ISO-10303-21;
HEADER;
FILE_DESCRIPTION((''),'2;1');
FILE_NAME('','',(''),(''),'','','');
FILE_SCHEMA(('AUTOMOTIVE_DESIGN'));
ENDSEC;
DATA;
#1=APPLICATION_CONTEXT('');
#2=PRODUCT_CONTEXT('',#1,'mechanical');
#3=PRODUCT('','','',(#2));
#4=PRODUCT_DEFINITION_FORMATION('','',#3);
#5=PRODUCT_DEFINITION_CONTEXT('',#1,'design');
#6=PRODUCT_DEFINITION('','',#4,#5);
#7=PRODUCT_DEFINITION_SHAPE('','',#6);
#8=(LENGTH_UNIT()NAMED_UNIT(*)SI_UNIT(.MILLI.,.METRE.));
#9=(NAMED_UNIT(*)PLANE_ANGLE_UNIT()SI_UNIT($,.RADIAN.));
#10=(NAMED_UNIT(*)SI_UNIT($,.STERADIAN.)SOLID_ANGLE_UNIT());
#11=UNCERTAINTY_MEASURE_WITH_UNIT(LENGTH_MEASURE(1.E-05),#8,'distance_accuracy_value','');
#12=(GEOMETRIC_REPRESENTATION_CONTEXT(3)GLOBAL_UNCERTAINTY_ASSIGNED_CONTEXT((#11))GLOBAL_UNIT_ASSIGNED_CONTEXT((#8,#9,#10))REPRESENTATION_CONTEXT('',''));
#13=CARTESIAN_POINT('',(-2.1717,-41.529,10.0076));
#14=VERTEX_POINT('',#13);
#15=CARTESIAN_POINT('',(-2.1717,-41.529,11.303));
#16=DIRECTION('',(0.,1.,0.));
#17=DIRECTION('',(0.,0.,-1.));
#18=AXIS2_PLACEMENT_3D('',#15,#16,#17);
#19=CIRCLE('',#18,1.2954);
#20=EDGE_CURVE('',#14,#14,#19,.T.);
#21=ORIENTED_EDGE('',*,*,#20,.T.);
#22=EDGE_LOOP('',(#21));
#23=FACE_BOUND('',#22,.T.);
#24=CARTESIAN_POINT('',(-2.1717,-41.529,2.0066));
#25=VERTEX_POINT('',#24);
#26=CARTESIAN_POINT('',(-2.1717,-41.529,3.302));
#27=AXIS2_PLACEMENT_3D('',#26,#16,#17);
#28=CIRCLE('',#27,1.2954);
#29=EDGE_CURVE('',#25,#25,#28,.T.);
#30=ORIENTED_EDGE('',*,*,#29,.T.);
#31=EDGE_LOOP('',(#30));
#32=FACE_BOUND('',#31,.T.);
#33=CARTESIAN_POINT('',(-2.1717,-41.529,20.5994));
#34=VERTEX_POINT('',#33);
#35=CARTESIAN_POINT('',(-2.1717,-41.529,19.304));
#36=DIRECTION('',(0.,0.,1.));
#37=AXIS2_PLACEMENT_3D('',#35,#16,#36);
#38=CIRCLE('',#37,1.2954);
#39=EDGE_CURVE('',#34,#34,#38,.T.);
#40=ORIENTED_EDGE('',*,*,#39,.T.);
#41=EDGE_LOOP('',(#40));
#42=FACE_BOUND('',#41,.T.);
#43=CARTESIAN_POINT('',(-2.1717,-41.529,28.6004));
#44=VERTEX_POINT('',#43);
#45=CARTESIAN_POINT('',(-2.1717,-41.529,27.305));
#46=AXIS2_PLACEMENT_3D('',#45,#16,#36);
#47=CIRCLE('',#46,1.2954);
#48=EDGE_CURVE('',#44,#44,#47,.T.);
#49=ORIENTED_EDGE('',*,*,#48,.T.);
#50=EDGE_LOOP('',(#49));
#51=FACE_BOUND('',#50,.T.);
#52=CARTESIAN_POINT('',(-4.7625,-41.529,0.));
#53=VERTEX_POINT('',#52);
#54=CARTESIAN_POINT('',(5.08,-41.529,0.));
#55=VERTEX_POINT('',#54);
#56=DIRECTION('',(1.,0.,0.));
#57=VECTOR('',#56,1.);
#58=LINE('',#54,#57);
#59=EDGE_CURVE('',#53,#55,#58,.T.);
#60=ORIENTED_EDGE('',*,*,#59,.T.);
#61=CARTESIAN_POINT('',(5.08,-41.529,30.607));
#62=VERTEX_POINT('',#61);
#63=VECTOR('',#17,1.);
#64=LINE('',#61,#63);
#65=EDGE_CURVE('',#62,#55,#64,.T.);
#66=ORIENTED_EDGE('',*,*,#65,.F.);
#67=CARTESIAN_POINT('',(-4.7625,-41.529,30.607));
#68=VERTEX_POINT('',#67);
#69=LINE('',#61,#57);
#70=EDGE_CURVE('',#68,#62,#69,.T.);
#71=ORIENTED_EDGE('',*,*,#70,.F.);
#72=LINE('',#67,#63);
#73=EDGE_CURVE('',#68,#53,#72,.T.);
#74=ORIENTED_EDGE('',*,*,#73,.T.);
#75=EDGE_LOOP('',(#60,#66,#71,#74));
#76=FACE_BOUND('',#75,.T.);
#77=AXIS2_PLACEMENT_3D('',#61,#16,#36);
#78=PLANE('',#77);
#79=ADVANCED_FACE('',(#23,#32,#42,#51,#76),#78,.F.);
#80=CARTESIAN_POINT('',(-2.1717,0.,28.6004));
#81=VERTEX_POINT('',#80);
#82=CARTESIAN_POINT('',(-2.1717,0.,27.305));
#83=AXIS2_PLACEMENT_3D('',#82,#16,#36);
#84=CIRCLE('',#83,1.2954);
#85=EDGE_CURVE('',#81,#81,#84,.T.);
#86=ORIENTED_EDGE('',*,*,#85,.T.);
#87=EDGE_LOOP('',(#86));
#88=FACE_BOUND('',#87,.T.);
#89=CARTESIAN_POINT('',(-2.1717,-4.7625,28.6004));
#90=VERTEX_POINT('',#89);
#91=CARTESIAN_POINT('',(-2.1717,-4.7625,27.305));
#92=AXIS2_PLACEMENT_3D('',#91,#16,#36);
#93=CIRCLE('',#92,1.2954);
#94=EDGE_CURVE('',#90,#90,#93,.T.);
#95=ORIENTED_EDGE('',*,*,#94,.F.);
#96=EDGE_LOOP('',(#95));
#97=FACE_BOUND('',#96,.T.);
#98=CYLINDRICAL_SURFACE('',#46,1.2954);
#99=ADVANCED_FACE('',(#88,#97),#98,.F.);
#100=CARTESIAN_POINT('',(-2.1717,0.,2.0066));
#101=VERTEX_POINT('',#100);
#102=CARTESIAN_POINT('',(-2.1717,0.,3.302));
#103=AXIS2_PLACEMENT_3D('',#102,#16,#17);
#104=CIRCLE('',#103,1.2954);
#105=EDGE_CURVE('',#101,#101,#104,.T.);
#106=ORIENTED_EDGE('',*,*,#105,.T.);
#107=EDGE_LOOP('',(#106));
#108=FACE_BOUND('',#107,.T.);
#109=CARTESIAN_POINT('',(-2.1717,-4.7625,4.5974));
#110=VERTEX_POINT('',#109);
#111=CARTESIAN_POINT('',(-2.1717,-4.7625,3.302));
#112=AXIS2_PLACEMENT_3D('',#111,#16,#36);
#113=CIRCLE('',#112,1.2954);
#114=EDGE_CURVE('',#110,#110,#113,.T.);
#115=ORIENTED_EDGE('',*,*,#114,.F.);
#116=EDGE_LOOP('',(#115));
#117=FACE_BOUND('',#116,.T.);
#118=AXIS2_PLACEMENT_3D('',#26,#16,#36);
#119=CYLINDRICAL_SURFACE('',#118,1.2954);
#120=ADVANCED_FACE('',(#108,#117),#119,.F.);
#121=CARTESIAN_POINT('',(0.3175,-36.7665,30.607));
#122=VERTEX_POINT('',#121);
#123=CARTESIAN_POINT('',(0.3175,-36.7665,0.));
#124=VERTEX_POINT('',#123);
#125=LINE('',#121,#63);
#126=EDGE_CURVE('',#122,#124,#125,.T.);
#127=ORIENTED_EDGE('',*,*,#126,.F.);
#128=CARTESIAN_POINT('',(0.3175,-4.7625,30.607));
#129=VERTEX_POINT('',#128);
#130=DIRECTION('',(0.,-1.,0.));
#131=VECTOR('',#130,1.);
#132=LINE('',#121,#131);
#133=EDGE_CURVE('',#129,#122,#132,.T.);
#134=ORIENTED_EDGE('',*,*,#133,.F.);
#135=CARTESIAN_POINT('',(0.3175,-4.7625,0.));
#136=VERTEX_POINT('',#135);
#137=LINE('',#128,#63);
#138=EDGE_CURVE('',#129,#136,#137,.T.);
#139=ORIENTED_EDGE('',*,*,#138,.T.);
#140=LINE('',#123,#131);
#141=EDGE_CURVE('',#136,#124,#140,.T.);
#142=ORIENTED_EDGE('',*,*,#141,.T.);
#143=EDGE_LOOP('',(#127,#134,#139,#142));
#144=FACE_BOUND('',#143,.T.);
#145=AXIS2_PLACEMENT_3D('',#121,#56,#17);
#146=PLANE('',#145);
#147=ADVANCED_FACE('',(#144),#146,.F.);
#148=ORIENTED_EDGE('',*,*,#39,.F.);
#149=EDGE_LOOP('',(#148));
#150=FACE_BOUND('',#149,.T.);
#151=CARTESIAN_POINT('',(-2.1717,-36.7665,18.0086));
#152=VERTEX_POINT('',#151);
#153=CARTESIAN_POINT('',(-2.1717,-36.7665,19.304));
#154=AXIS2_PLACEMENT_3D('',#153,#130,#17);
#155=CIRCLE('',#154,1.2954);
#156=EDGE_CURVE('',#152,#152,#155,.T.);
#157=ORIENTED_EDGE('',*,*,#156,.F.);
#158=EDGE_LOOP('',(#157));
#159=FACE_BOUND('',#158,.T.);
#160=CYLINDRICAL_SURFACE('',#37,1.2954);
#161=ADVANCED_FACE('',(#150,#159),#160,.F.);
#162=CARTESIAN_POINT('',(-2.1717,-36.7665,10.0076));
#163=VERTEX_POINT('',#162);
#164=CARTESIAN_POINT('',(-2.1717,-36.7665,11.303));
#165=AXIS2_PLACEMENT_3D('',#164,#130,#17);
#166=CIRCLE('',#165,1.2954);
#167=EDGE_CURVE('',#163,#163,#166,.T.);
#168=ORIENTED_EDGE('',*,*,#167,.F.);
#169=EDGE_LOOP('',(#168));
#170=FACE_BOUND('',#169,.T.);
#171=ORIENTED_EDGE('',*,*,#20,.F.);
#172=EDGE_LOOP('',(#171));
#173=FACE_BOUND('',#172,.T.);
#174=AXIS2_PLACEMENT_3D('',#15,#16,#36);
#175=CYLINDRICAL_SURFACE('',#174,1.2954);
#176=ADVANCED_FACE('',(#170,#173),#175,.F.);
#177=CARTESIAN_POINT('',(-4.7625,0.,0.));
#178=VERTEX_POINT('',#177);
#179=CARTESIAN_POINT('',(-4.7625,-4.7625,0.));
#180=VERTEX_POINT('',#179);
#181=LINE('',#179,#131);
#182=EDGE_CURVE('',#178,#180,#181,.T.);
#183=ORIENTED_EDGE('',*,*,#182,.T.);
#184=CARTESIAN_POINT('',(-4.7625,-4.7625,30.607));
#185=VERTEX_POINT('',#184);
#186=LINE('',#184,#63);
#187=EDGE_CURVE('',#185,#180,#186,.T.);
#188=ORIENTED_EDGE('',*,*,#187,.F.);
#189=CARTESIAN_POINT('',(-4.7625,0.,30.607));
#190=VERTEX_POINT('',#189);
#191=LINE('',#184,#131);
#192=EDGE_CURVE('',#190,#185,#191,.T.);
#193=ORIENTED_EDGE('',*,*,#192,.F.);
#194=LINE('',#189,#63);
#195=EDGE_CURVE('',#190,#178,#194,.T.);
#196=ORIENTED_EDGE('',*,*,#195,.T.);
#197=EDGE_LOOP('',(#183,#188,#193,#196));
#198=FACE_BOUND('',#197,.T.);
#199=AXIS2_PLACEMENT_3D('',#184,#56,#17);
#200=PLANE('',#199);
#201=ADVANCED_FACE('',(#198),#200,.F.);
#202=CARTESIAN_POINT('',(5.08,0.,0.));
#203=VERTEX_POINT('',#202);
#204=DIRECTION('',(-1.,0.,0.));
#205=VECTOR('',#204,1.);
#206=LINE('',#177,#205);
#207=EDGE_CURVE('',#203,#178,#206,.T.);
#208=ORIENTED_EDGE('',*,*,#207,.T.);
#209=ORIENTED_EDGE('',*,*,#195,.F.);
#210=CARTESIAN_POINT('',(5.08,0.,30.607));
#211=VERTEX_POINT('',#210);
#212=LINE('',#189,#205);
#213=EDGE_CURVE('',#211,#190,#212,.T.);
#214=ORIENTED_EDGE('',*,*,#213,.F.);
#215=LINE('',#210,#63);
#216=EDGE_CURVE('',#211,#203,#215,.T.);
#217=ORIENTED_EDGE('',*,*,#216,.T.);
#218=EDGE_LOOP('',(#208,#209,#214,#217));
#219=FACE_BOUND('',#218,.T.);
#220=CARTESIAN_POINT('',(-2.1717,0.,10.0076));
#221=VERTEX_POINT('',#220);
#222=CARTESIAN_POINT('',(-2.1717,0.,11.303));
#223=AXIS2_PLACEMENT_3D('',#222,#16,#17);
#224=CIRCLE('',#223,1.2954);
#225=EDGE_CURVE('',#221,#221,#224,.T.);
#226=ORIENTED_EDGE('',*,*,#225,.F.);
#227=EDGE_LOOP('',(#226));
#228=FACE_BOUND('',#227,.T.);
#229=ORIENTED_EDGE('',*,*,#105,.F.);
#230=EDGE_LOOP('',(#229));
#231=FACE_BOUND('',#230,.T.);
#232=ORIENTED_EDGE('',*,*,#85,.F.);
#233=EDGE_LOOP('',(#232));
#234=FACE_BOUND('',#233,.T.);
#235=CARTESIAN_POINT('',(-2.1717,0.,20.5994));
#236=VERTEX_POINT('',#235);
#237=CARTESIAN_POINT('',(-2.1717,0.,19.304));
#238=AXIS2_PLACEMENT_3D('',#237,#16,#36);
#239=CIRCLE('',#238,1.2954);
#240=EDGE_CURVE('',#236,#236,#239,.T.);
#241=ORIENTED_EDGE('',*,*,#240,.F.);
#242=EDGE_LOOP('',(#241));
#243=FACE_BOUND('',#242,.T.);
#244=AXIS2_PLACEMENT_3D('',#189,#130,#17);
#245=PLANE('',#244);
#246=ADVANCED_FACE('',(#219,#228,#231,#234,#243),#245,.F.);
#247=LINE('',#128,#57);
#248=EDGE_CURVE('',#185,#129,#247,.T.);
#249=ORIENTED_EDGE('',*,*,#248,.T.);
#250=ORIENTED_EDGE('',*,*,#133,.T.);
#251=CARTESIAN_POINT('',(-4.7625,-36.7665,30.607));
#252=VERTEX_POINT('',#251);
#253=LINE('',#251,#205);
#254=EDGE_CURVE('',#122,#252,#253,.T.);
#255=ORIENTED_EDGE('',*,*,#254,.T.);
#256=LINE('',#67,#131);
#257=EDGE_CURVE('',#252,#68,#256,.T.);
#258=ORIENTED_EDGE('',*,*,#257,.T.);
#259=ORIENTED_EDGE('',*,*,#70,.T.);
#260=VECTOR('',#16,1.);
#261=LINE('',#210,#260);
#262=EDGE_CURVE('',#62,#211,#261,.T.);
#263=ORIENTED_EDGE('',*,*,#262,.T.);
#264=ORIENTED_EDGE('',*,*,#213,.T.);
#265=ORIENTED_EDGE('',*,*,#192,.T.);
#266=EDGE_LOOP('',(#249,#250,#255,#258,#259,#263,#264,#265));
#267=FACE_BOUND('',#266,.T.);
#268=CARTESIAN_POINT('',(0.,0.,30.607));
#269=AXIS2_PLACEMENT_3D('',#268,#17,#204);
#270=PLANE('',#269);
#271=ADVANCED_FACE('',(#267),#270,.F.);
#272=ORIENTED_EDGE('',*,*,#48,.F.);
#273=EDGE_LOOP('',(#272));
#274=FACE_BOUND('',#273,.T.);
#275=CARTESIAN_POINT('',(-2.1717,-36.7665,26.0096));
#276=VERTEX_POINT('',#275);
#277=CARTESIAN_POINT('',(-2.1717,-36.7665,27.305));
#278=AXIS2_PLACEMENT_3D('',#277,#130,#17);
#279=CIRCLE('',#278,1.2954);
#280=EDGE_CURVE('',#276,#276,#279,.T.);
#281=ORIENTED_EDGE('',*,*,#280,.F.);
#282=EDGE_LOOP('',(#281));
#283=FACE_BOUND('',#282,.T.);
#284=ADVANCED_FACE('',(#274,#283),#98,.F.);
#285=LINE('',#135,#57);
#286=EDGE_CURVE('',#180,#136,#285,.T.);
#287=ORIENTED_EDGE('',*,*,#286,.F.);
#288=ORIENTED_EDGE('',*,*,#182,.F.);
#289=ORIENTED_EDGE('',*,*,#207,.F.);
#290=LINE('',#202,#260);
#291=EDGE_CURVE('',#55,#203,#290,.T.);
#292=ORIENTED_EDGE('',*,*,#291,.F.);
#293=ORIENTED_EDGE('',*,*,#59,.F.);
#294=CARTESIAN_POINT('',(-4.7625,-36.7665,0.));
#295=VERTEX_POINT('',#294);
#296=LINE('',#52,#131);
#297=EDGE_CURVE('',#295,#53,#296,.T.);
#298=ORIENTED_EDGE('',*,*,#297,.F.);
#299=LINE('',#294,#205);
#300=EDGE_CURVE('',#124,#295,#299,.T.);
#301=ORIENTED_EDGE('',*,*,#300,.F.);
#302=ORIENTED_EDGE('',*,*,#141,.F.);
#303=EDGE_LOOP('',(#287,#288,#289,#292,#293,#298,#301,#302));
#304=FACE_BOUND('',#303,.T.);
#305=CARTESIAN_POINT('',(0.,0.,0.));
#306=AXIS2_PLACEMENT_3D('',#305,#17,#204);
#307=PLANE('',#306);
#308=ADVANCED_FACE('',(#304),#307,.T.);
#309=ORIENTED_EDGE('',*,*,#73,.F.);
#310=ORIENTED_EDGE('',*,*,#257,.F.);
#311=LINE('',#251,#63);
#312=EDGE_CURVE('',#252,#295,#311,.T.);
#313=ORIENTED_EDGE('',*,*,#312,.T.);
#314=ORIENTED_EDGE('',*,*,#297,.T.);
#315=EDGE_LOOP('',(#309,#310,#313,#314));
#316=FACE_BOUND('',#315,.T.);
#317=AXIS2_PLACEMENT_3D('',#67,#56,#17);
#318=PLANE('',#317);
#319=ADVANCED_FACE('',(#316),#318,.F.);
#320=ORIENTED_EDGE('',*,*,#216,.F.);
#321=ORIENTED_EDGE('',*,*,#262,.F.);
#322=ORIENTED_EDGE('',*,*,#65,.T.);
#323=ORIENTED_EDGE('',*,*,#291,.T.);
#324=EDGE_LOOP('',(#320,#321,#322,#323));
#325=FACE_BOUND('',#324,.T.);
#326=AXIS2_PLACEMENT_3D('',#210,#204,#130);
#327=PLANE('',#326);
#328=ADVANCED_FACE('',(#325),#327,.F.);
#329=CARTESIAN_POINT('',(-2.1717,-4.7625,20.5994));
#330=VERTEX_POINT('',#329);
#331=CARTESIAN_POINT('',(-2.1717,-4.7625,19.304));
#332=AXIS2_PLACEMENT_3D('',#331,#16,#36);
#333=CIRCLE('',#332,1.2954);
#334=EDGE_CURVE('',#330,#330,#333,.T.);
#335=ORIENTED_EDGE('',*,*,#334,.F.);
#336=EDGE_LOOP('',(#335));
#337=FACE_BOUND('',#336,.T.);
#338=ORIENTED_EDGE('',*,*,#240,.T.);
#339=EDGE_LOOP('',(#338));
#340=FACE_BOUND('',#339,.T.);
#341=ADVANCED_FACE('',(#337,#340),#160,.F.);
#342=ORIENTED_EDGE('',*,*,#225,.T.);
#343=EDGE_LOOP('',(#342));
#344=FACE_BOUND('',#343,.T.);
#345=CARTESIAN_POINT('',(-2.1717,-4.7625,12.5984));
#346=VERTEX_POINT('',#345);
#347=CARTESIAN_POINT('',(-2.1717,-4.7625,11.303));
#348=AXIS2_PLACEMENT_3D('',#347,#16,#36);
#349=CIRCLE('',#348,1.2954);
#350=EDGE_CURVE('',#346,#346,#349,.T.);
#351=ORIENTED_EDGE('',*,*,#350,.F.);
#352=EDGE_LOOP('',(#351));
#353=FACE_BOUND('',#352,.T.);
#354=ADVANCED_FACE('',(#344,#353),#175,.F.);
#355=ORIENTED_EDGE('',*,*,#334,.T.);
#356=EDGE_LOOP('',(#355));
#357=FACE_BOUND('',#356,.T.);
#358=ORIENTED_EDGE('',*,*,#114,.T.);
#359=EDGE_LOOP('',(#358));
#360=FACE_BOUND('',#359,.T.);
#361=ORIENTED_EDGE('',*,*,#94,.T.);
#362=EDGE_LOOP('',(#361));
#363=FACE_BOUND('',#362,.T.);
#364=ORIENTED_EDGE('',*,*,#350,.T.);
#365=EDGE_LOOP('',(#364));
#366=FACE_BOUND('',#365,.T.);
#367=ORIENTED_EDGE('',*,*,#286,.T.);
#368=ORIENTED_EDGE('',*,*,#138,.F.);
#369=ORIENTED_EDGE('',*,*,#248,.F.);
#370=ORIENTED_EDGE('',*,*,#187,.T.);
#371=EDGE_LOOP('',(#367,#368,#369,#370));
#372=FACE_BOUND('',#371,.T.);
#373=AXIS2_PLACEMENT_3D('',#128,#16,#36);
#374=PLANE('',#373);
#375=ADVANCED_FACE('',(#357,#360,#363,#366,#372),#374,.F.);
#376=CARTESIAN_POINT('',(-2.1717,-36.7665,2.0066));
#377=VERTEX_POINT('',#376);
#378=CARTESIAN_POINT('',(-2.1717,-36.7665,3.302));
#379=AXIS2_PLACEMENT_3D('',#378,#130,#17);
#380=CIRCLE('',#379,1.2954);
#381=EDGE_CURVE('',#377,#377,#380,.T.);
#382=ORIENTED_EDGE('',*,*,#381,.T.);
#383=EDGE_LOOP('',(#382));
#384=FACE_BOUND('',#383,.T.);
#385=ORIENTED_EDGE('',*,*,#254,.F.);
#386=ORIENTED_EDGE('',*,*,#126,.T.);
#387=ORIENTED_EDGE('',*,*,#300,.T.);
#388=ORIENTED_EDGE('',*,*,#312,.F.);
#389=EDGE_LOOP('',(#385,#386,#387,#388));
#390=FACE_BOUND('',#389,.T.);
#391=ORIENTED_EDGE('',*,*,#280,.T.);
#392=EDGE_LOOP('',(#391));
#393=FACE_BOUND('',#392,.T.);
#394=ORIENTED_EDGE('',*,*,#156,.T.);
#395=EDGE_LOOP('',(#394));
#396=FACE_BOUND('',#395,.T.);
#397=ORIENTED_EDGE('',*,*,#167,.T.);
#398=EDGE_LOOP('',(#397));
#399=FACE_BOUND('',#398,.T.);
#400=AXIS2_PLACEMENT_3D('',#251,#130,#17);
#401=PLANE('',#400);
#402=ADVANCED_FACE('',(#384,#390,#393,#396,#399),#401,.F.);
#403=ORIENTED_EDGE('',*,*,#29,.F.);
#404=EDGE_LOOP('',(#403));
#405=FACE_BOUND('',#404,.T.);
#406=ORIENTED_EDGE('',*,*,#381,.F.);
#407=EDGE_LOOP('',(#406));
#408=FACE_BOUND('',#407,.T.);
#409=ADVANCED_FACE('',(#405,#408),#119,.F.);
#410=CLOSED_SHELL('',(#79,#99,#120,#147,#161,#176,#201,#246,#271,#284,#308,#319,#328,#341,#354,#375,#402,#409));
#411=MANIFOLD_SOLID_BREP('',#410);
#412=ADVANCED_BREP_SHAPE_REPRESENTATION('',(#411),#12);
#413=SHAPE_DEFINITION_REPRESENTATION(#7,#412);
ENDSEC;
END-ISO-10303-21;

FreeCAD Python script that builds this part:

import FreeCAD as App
import Part
import Sketcher
from FreeCAD import Vector
Q = App.Units.Quantity

doc = App.newDocument("Part")
body = doc.addObject("PartDesign::Body", "Body")

# Sketch on XY plane
sketch1 = doc.addObject("Sketcher::SketchObject", "Sketch")
body.addObject(sketch1)
sketch1.AttachmentSupport = (doc.XY_Plane, [""])
sketch1.MapMode = "FlatFace"
sketch1.addGeometry([
    Part.LineSegment(Vector(5.1, 0, 0), Vector(-4.8, 0, 0)),  # 0
    Part.LineSegment(Vector(-4.8, 0, 0), Vector(-4.8, -4.8, 0)),  # 1
    Part.LineSegment(Vector(-4.8, -4.8, 0), Vector(0.3, -4.8, 0)),  # 2
    Part.LineSegment(Vector(0.3, -4.8, 0), Vector(0.3, -36.8, 0)),  # 3
    Part.LineSegment(Vector(0.3, -36.8, 0), Vector(-4.8, -36.8, 0)),  # 4
    Part.LineSegment(Vector(-4.8, -36.8, 0), Vector(-4.8, -41.5, 0)),  # 5
    Part.LineSegment(Vector(-4.8, -41.5, 0), Vector(5.1, -41.5, 0)),  # 6
    Part.LineSegment(Vector(5.1, -41.5, 0), Vector(5.1, 0, 0)),  # 7
], False)
sketch1.addConstraint([
    Sketcher.Constraint("Coincident", 0, 2, 1, 1),
    Sketcher.Constraint("Coincident", 1, 2, 2, 1),
    Sketcher.Constraint("Coincident", 2, 2, 3, 1),
    Sketcher.Constraint("Coincident", 3, 2, 4, 1),
    Sketcher.Constraint("Coincident", 4, 2, 5, 1),
    Sketcher.Constraint("Coincident", 5, 2, 6, 1),
    Sketcher.Constraint("Coincident", 6, 2, 7, 1),
    Sketcher.Constraint("Coincident", 7, 2, 0, 1),
    Sketcher.Constraint("Horizontal", 0),
    Sketcher.Constraint("Vertical", 1),
    Sketcher.Constraint("Horizontal", 2),
    Sketcher.Constraint("Vertical", 3),
    Sketcher.Constraint("Horizontal", 4),
    Sketcher.Constraint("Vertical", 5),
    Sketcher.Constraint("Horizontal", 6),
    Sketcher.Constraint("Vertical", 7),
    Sketcher.Constraint("PointOnObject", 0, 2, -1),
    Sketcher.Constraint("Vertical", 1, 2, 4, 2),
    Sketcher.Constraint("Equal", 1, 5),
    Sketcher.Constraint("DistanceX", 2, 1, 2, 2, Q("0.2 in")),
    Sketcher.Constraint("DistanceY", 3, 2, 3, 1, Q("1.26 in")),
    Sketcher.Constraint("DistanceX", -1, 1, 6, 2, Q("0.2 in")),
    Sketcher.Constraint("DistanceY", 1, 2, 1, 1, Q("0.1875 in")),
    Sketcher.Constraint("DistanceX", 0, 2, 0, 1, Q("0.3875 in")),
])
pad1 = doc.addObject("PartDesign::Pad", "Pad")
body.addObject(pad1)
pad1.Profile = sketch1
pad1.Length = Q("1.205 in")

# Sketch on XZ plane
sketch2 = doc.addObject("Sketcher::SketchObject", "Sketch001")
body.addObject(sketch2)
sketch2.AttachmentSupport = (doc.XZ_Plane, [""])
sketch2.MapMode = "FlatFace"
sketch2.addGeometry([
    Part.Circle(Vector(-2.2, 27.3, 0), Vector(0, 0, 1), 1.3),
    Part.Circle(Vector(-2.2, 19.3, 0), Vector(0, 0, 1), 1.3),
    Part.Circle(Vector(-2.2, 3.3, 0), Vector(0, 0, 1), 1.3),
    Part.Circle(Vector(-2.2, 11.3, 0), Vector(0, 0, 1), 1.3),
], False)
sketch2.addConstraint([
    Sketcher.Constraint("Equal", 0, 1),
    Sketcher.Constraint("Equal", 1, 2),
    Sketcher.Constraint("Equal", 2, 3),
    Sketcher.Constraint("Vertical", 0, 3, 1, 3),
    Sketcher.Constraint("Vertical", 1, 3, 2, 3),
    Sketcher.Constraint("Vertical", 2, 3, 3, 3),
    Sketcher.Constraint("Diameter", 0, Q("0.102 in")),
    Sketcher.Constraint("DistanceY", -1, 1, 1, 3, Q("0.76 in")),
    Sketcher.Constraint("DistanceY", -1, 1, 2, 3, Q("0.13 in")),
    Sketcher.Constraint("DistanceY", 3, 3, 0, 3, Q("0.63 in")),
    Sketcher.Constraint("DistanceY", -1, 1, 0, 3, Q("1.075 in")),
    Sketcher.Constraint("DistanceX", 0, 3, -1, 1, Q("0.0855 in")),
])
pocket1 = doc.addObject("PartDesign::Pocket", "Pocket")
body.addObject(pocket1)
pocket1.Profile = sketch2
pocket1.Type = "ThroughAll"
pocket1.Reversed = True

doc.recompute()
